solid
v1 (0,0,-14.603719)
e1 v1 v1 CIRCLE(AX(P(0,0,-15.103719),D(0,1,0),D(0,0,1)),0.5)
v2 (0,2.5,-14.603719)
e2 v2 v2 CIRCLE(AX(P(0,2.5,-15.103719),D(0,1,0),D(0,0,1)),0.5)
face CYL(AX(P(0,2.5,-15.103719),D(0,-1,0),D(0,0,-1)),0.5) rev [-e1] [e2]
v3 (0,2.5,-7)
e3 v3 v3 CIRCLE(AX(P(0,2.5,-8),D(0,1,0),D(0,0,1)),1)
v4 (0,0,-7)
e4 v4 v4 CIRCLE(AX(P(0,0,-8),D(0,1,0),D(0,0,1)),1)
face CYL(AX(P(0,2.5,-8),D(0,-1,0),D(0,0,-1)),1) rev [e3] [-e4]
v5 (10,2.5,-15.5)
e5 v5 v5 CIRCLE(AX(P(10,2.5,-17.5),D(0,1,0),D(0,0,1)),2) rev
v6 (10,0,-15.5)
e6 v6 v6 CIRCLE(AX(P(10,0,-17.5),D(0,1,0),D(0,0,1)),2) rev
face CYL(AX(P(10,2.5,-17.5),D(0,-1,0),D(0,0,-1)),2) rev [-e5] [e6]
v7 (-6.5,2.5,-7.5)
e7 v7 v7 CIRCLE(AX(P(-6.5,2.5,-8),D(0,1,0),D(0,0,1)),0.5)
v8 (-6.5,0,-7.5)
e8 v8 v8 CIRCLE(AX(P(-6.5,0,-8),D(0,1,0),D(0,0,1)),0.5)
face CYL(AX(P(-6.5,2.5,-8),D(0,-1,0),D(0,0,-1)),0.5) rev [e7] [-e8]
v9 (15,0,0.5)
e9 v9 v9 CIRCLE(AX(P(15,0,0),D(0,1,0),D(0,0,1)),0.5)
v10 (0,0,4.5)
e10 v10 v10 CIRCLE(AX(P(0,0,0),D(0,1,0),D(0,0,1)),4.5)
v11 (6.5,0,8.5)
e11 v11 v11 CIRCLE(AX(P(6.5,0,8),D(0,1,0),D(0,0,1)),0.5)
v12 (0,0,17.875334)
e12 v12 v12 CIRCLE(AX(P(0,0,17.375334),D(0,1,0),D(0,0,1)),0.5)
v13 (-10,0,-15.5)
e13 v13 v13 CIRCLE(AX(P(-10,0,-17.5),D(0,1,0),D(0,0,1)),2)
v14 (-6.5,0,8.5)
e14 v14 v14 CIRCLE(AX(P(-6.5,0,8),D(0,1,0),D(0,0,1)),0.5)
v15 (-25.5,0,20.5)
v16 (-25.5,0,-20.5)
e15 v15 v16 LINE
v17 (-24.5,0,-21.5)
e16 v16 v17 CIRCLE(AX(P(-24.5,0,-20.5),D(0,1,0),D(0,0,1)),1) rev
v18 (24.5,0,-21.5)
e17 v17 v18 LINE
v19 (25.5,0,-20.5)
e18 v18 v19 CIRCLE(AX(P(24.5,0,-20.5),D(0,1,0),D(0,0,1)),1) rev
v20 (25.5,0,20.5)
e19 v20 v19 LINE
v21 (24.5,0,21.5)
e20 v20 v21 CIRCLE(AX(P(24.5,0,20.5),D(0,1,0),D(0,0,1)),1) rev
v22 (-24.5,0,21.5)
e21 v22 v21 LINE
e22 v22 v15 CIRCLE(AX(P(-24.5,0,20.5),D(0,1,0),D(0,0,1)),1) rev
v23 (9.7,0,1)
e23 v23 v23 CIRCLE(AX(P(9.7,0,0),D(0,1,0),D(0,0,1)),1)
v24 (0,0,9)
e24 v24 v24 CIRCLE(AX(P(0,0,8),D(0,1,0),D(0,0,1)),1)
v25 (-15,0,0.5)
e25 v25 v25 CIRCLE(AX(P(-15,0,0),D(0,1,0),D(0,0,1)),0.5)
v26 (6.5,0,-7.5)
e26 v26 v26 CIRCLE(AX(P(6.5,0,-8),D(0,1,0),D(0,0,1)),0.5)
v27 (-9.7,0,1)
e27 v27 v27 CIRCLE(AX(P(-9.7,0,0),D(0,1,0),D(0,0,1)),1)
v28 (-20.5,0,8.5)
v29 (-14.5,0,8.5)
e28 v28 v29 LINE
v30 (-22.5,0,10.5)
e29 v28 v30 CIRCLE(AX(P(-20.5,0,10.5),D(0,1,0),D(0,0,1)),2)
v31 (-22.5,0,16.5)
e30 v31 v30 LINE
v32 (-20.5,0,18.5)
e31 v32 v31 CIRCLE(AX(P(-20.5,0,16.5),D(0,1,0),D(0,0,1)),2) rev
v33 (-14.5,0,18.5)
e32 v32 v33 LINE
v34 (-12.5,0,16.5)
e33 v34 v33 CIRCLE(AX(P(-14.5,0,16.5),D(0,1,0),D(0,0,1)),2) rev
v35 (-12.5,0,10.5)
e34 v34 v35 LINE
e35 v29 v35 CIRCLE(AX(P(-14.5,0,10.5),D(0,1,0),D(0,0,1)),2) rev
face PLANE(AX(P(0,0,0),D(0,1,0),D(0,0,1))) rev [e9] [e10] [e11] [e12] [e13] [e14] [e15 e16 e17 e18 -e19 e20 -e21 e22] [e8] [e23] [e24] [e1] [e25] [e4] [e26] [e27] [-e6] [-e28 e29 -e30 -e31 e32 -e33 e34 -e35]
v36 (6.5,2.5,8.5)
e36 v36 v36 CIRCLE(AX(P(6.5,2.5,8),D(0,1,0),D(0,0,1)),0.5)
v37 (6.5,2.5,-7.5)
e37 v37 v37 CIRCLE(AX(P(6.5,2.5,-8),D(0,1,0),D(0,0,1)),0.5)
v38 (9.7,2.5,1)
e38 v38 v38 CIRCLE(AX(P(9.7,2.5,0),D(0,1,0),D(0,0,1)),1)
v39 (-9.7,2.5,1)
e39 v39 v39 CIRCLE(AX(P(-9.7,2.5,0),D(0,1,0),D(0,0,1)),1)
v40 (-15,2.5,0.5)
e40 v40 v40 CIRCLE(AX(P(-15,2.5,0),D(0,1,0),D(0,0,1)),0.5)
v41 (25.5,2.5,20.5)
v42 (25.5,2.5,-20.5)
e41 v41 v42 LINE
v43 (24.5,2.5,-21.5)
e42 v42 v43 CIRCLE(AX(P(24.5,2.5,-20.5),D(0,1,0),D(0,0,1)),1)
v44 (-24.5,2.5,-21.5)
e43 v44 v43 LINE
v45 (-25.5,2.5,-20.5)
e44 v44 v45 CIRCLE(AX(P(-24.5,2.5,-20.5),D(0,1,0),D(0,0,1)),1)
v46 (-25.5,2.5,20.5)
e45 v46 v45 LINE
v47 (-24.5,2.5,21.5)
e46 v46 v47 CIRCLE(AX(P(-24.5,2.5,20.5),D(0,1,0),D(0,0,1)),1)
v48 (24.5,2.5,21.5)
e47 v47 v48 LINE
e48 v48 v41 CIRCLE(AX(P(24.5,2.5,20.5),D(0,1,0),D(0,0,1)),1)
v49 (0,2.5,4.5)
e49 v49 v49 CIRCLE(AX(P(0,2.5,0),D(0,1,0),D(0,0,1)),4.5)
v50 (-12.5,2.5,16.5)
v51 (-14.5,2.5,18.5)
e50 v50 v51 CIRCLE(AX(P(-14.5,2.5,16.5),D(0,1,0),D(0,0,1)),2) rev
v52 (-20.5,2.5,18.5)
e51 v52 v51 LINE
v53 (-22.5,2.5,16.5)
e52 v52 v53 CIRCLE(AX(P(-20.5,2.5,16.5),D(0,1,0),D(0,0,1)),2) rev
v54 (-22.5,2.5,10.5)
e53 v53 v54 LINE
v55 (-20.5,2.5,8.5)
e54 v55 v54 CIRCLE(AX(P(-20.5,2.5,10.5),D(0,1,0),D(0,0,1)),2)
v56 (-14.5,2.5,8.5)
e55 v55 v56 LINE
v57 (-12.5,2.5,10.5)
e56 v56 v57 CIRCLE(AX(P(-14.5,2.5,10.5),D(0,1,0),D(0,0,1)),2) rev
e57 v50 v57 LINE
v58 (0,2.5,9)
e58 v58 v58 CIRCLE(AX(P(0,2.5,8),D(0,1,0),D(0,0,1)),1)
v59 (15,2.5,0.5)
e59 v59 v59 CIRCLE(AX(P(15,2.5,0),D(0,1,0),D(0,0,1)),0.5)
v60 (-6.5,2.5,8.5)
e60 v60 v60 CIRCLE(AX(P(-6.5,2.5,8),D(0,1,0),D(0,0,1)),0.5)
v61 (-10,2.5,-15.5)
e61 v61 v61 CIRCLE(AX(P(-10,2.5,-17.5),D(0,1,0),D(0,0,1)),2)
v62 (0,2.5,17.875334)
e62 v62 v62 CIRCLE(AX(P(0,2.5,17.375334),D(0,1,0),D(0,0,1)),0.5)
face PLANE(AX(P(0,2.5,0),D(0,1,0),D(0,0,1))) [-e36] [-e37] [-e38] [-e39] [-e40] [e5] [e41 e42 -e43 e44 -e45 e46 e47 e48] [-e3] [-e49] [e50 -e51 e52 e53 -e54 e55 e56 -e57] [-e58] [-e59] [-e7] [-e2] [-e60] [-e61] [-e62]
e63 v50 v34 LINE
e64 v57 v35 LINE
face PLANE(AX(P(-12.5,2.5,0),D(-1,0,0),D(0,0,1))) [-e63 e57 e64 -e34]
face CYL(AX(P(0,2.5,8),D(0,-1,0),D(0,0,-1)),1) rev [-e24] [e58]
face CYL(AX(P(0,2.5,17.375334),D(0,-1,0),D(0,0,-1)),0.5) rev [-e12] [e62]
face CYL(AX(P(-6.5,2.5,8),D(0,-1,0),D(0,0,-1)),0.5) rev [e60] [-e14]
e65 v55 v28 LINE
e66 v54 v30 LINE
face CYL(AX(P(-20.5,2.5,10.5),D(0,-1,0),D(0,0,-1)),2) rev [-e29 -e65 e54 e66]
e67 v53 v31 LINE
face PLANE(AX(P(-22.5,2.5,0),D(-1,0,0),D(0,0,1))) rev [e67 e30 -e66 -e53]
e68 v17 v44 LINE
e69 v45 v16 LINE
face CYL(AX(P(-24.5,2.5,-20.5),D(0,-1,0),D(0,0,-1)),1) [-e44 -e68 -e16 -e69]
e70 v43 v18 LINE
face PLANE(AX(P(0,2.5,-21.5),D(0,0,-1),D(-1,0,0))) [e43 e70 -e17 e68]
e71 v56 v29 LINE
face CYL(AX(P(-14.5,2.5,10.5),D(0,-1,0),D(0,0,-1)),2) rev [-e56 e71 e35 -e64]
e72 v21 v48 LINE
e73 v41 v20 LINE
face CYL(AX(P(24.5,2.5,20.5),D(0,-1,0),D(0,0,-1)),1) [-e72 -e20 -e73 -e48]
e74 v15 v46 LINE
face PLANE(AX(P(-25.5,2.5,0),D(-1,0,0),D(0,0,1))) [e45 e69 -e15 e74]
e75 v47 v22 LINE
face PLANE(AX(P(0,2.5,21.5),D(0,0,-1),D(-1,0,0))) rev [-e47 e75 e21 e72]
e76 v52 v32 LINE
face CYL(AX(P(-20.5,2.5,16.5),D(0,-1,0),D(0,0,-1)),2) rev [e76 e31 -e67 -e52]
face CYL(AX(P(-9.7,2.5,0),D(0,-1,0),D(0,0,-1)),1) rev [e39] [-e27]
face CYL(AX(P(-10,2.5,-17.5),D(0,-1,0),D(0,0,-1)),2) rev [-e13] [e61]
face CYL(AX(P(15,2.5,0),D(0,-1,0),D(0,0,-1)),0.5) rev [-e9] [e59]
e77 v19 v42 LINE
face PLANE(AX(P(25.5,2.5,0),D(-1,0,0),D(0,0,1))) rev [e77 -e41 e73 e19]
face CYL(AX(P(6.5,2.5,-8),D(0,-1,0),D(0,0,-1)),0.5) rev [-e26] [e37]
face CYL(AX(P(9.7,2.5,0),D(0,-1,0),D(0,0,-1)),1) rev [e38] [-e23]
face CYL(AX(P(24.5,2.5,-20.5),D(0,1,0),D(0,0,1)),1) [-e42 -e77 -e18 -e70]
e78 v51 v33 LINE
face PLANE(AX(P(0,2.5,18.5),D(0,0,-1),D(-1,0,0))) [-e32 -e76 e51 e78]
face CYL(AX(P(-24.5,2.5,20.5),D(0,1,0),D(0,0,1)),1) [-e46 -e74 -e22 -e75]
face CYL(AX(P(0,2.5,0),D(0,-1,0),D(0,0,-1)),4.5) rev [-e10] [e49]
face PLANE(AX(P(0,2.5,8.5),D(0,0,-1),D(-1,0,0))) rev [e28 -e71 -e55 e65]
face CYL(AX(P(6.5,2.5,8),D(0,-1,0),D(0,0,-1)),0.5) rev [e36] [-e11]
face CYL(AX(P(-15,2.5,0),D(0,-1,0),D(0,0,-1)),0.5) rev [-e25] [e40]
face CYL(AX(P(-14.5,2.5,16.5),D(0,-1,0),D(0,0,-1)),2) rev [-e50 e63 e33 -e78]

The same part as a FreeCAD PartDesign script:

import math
import FreeCAD as App
import Part
import Sketcher
from FreeCAD import Vector
Q = App.Units.Quantity


def edges_at(feature, points):
    """Names of the edges that pass closest to the given points."""
    edges = feature.Shape.Edges
    near = lambda p: min(range(len(edges)), key=lambda i: edges[i].distToShape(Part.Vertex(*p))[0])
    return sorted({f"Edge{near(p) + 1}" for p in points})

doc = App.newDocument("Part")
body = doc.addObject("PartDesign::Body", "Body")

# Sketch on XZ plane
sketch1 = doc.addObject("Sketcher::SketchObject", "Sketch")
body.addObject(sketch1)
sketch1.AttachmentSupport = (doc.XZ_Plane, [""])
sketch1.MapMode = "FlatFace"
sketch1.addGeometry([
    Part.LineSegment(Vector(-25.5, -21.5, 0), Vector(-25.5, 21.5, 0)),  # 0
    Part.LineSegment(Vector(-25.5, 21.5, 0), Vector(25.5, 21.5, 0)),  # 1
    Part.LineSegment(Vector(25.5, 21.5, 0), Vector(25.5, -21.5, 0)),  # 2
    Part.LineSegment(Vector(25.5, -21.5, 0), Vector(-25.5, -21.5, 0)),  # 3
    Part.LineSegment(Vector(-14.5, 18.5, 0), Vector(-20.5, 18.5, 0)),  # 4
    Part.ArcOfCircle(Part.Circle(Vector(-20.5, 16.5, 0), Vector(0, 0, 1), 2), math.radians(90), math.radians(180)),  # 5
    Part.LineSegment(Vector(-22.5, 16.5, 0), Vector(-22.5, 10.5, 0)),  # 6
    Part.ArcOfCircle(Part.Circle(Vector(-20.5, 10.5, 0), Vector(0, 0, 1), 2), math.radians(-180), math.radians(-90)),  # 7
    Part.LineSegment(Vector(-20.5, 8.5, 0), Vector(-14.5, 8.5, 0)),  # 8
    Part.ArcOfCircle(Part.Circle(Vector(-14.5, 10.5, 0), Vector(0, 0, 1), 2), math.radians(-90), math.radians(0)),  # 9
    Part.LineSegment(Vector(-12.5, 10.5, 0), Vector(-12.5, 16.5, 0)),  # 10
    Part.ArcOfCircle(Part.Circle(Vector(-14.5, 16.5, 0), Vector(0, 0, 1), 2), math.radians(0), math.radians(90)),  # 11
    Part.Circle(Vector(-15, 0, 0), Vector(0, 0, 1), 0.5),  # 12
    Part.Circle(Vector(-6.5, 8, 0), Vector(0, 0, 1), 0.5),  # 13
    Part.Circle(Vector(-9.7, 0, 0), Vector(0, 0, 1), 1),  # 14
    Part.Circle(Vector(0, 17.375334, 0), Vector(0, 0, 1), 0.5),  # 15
    Part.Circle(Vector(0, 8, 0), Vector(0, 0, 1), 1),  # 16
    Part.Circle(Vector(0, 0, 0), Vector(0, 0, 1), 4.5),  # 17
    Part.Circle(Vector(6.5, 8, 0), Vector(0, 0, 1), 0.5),  # 18
    Part.Circle(Vector(9.7, 0, 0), Vector(0, 0, 1), 1),  # 19
    Part.Circle(Vector(15, 0, 0), Vector(0, 0, 1), 0.5),  # 20
    Part.Circle(Vector(-6.5, -8, 0), Vector(0, 0, 1), 0.5),  # 21
    Part.Circle(Vector(-10, -17.5, 0), Vector(0, 0, 1), 2),  # 22
    Part.Circle(Vector(0, -8, 0), Vector(0, 0, 1), 1),  # 23
    Part.Circle(Vector(6.5, -8, 0), Vector(0, 0, 1), 0.5),  # 24
    Part.Circle(Vector(0, -15.103719, 0), Vector(0, 0, 1), 0.5),  # 25
    Part.Circle(Vector(10, -17.5, 0), Vector(0, 0, 1), 2),  # 26
], False)
sketch1.addConstraint([
    Sketcher.Constraint("Coincident", 0, 2, 1, 1),
    Sketcher.Constraint("Coincident", 1, 2, 2, 1),
    Sketcher.Constraint("Coincident", 2, 2, 3, 1),
    Sketcher.Constraint("Coincident", 3, 2, 0, 1),
    Sketcher.Constraint("Tangent", 4, 2, 5, 1),
    Sketcher.Constraint("Tangent", 5, 2, 6, 1),
    Sketcher.Constraint("Tangent", 6, 2, 7, 1),
    Sketcher.Constraint("Tangent", 7, 2, 8, 1),
    Sketcher.Constraint("Tangent", 8, 2, 9, 1),
    Sketcher.Constraint("Tangent", 9, 2, 10, 1),
    Sketcher.Constraint("Tangent", 10, 2, 11, 1),
    Sketcher.Constraint("Tangent", 11, 2, 4, 1),
    Sketcher.Constraint("Vertical", 0),
    Sketcher.Constraint("Horizontal", 1),
    Sketcher.Constraint("Vertical", 2),
    Sketcher.Constraint("Horizontal", 3),
    Sketcher.Constraint("Horizontal", 4),
    Sketcher.Constraint("Vertical", 6),
    Sketcher.Constraint("Horizontal", 8),
    Sketcher.Constraint("Vertical", 10),
    Sketcher.Constraint("Coincident", 17, 3, -1, 1),
    Sketcher.Constraint("Equal", 5, 7),
    Sketcher.Constraint("Equal", 7, 9),
    Sketcher.Constraint("Equal", 9, 11),
    Sketcher.Constraint("Equal", 12, 13),
    Sketcher.Constraint("Equal", 13, 15),
    Sketcher.Constraint("Equal", 14, 16),
    Sketcher.Constraint("Equal", 15, 18),
    Sketcher.Constraint("Equal", 16, 19),
    Sketcher.Constraint("Equal", 18, 20),
    Sketcher.Constraint("Equal", 20, 21),
    Sketcher.Constraint("Equal", 11, 22),
    Sketcher.Constraint("Equal", 19, 23),
    Sketcher.Constraint("Equal", 21, 24),
    Sketcher.Constraint("Equal", 24, 25),
    Sketcher.Constraint("Equal", 22, 26),
    Sketcher.Constraint("Symmetric", 14, 3, 19, 3, -1, 1),
    Sketcher.Constraint("Symmetric", 12, 3, 20, 3, -1, 1),
    Sketcher.Constraint("Symmetric", 18, 3, 21, 3, -1, 1),
    Sketcher.Constraint("Symmetric", 16, 3, 23, 3, -1, 1),
    Sketcher.Constraint("Symmetric", 13, 3, 24, 3, -1, 1),
    Sketcher.Constraint("Symmetric", 0, 2, 2, 2, -1, 1),
    Sketcher.Constraint("Symmetric", 13, 3, 18, 3, -2),
    Sketcher.Constraint("Symmetric", 22, 3, 26, 3, -2),
    Sketcher.Constraint("PointOnObject", 12, 3, -1),
    Sketcher.Constraint("PointOnObject", 14, 3, -1),
    Sketcher.Constraint("PointOnObject", 15, 3, -2),
    Sketcher.Constraint("PointOnObject", 16, 3, -2),
    Sketcher.Constraint("PointOnObject", 25, 3, -2),
    Sketcher.Constraint("Horizontal", 13, 3, 16, 3),
    Sketcher.Constraint("Equal", 8, 6),
    Sketcher.Constraint("Diameter", 12, Q("1 mm")),
    Sketcher.Constraint("Diameter", 14, Q("2 mm")),
    Sketcher.Constraint("Diameter", 17, Q("9 mm")),
    Sketcher.Constraint("Diameter", 22, Q("4 mm")),
    Sketcher.Constraint("DistanceX", 1, 1, 1, 2, Q("51 mm")),
    Sketcher.Constraint("DistanceX", 4, 2, 4, 1, Q("6 mm")),
    Sketcher.Constraint("DistanceY", 0, 1, 0, 2, Q("43 mm")),
    Sketcher.Constraint("DistanceX", 12, 3, -1, 1, Q("15 mm")),
    Sketcher.Constraint("DistanceY", -1, 1, 13, 3, Q("8 mm")),
    Sketcher.Constraint("DistanceX", 22, 3, -1, 1, Q("10 mm")),
    Sketcher.Constraint("DistanceX", 9, 3, 13, 3, Q("8 mm")),
    Sketcher.Constraint("DistanceX", 13, 3, 18, 3, Q("13 mm")),
    Sketcher.Constraint("DistanceY", 5, 3, 0, 2, Q("5 mm")),
    Sketcher.Constraint("DistanceY", 2, 2, 26, 3, Q("4 mm")),
    Sketcher.Constraint("DistanceX", 14, 3, -1, 1, Q("9.7 mm")),
    Sketcher.Constraint("DistanceY", 25, 3, -1, 1, Q("15.103719 mm")),
    Sketcher.Constraint("DistanceY", -1, 1, 15, 3, Q("17.375334 mm")),
])
pad1 = doc.addObject("PartDesign::Pad", "Pad")
body.addObject(pad1)
pad1.Profile = sketch1
pad1.Length = 2.5
pad1.Reversed = True
doc.recompute()

fillet = doc.addObject("PartDesign::Fillet", "Fillet")
body.addObject(fillet)
fillet.Base = (pad1, edges_at(pad1, [
    (25.5, 1.25, -21.5),
    (25.5, 1.25, 21.5),
    (-25.5, 1.25, 21.5),
    (-25.5, 1.25, -21.5),
]))
fillet.Radius = 1

doc.recompute()
